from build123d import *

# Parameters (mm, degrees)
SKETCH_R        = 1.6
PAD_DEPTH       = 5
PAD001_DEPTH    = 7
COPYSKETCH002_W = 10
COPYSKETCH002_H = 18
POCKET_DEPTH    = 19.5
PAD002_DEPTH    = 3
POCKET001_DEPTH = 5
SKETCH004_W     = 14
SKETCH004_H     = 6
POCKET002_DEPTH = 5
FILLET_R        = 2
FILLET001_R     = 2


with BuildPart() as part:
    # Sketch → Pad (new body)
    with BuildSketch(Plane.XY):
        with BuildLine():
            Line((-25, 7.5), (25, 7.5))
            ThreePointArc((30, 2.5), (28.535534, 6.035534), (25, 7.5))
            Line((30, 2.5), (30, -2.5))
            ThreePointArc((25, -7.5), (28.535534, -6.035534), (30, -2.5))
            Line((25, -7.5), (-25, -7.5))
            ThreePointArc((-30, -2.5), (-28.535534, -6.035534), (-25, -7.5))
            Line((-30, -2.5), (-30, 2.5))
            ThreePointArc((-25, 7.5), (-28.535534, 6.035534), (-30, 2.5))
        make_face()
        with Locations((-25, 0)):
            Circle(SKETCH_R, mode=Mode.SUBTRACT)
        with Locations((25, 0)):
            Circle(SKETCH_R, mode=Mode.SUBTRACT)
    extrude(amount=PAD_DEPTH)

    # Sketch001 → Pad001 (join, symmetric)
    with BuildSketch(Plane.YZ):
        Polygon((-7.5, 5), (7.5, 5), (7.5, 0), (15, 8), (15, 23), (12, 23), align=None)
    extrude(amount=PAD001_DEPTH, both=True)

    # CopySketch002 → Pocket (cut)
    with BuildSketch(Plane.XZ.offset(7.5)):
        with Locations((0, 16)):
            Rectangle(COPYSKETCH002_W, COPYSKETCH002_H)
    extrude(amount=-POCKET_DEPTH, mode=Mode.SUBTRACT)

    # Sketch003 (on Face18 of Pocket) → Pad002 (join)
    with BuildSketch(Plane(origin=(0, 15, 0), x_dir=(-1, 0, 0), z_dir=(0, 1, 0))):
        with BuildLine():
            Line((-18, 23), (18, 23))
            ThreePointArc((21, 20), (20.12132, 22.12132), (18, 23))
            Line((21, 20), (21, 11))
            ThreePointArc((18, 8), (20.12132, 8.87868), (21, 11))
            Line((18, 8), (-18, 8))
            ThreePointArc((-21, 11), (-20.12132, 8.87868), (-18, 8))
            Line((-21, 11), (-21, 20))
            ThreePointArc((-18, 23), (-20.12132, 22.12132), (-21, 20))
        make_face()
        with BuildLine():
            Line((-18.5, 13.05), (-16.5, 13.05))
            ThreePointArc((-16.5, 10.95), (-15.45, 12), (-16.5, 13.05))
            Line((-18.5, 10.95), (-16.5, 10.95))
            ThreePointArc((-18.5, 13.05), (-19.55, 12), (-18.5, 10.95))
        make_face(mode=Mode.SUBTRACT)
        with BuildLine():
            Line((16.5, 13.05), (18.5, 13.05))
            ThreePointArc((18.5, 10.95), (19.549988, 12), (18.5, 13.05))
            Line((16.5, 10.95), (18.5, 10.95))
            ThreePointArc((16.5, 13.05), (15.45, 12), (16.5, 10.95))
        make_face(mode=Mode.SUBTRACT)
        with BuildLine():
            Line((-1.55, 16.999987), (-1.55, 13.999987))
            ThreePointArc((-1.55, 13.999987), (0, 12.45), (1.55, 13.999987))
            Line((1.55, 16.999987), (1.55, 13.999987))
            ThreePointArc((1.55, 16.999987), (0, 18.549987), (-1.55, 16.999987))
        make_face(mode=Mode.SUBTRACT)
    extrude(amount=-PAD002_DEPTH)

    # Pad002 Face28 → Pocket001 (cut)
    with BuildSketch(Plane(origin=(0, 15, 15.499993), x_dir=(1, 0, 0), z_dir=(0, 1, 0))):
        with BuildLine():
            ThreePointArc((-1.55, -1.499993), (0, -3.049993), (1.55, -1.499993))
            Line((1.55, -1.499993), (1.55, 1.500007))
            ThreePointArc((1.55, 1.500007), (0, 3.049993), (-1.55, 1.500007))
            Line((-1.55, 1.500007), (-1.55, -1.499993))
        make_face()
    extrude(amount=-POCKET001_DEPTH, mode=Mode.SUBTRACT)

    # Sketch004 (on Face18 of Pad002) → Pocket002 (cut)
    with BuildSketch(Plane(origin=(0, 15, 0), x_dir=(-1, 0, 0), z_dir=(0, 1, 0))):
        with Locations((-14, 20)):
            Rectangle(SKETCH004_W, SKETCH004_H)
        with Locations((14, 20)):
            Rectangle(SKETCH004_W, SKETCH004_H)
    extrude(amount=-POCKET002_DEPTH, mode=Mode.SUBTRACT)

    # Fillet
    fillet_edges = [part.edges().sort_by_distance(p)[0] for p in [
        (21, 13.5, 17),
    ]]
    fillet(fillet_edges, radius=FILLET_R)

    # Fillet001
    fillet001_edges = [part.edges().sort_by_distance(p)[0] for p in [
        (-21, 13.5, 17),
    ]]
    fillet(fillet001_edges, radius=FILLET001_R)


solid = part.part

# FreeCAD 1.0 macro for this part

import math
import FreeCAD as App
import Part
import Sketcher
Q = App.Units.Quantity


def edges_at(feature, points):
    """Names of the edges that pass closest to the given points."""
    edges = feature.Shape.Edges
    near = lambda p: min(range(len(edges)), key=lambda i: edges[i].distToShape(Part.Vertex(*p))[0])
    return sorted({f"Edge{near(p) + 1}" for p in points})


def add_polygon(sketch, points):
    """Adds a closed chain of lines whose ends are joined by coincident constraints."""
    first, n = sketch.GeometryCount, len(points)
    for a, b in zip(points, points[1:] + points[:1]):
        sketch.addGeometry(Part.LineSegment(App.Vector(*a, 0), App.Vector(*b, 0)), False)
    for i in range(n):
        sketch.addConstraint(Sketcher.Constraint("Coincident", first + i, 2, first + (i + 1) % n, 1))

doc = App.newDocument("Part")
body = doc.addObject("PartDesign::Body", "Body")

sketch1 = body.newObject("Sketcher::SketchObject", "Sketch")
sketch1.AttachmentSupport = (doc.getObject("XY_Plane"), [""])
sketch1.MapMode = "FlatFace"
sketch1.addGeometry(Part.LineSegment(App.Vector(25, 7.5, 0), App.Vector(-25, 7.5, 0)), False)
sketch1.addGeometry(Part.ArcOfCircle(Part.Circle(App.Vector(-25, 2.5, 0), App.Vector(0, 0, 1), 5), math.radians(89.999996), math.radians(180.000004)), False)
sketch1.addGeometry(Part.LineSegment(App.Vector(-30, 2.5, 0), App.Vector(-30, -2.5, 0)), False)
sketch1.addGeometry(Part.ArcOfCircle(Part.Circle(App.Vector(-25, -2.5, 0), App.Vector(0, 0, 1), 5), math.radians(179.999996), math.radians(270.000004)), False)
sketch1.addGeometry(Part.LineSegment(App.Vector(-25, -7.5, 0), App.Vector(25, -7.5, 0)), False)
sketch1.addGeometry(Part.ArcOfCircle(Part.Circle(App.Vector(25, -2.5, 0), App.Vector(0, 0, 1), 5), math.radians(-90.000004), math.radians(0.000004)), False)
sketch1.addGeometry(Part.LineSegment(App.Vector(30, -2.5, 0), App.Vector(30, 2.5, 0)), False)
sketch1.addGeometry(Part.ArcOfCircle(Part.Circle(App.Vector(25, 2.5, 0), App.Vector(0, 0, 1), 5), math.radians(-0.000004), math.radians(90.000004)), False)
sketch1.addGeometry(Part.Circle(App.Vector(25, 0, 0), App.Vector(0, 0, 1), 1.6), False)
sketch1.addGeometry(Part.Circle(App.Vector(-25, 0, 0), App.Vector(0, 0, 1), 1.6), False)
sketch1.addConstraint(Sketcher.Constraint("Tangent", 0, 2, 1, 1))
sketch1.addConstraint(Sketcher.Constraint("Tangent", 1, 2, 2, 1))
sketch1.addConstraint(Sketcher.Constraint("Tangent", 2, 2, 3, 1))
sketch1.addConstraint(Sketcher.Constraint("Tangent", 3, 2, 4, 1))
sketch1.addConstraint(Sketcher.Constraint("Tangent", 4, 2, 5, 1))
sketch1.addConstraint(Sketcher.Constraint("Tangent", 5, 2, 6, 1))
sketch1.addConstraint(Sketcher.Constraint("Tangent", 6, 2, 7, 1))
sketch1.addConstraint(Sketcher.Constraint("Tangent", 7, 2, 0, 1))
sketch1.addConstraint(Sketcher.Constraint("Horizontal", 0))
sketch1.addConstraint(Sketcher.Constraint("Vertical", 2))
sketch1.addConstraint(Sketcher.Constraint("Horizontal", 4))
sketch1.addConstraint(Sketcher.Constraint("Vertical", 6))
sketch1.addConstraint(Sketcher.Constraint("Equal", 1, 3))
sketch1.addConstraint(Sketcher.Constraint("Equal", 3, 5))
sketch1.addConstraint(Sketcher.Constraint("Equal", 5, 7))
sketch1.addConstraint(Sketcher.Constraint("Equal", 8, 9))
sketch1.addConstraint(Sketcher.Constraint("Symmetric", 1, 3, 5, 3, -1, 1))
sketch1.addConstraint(Sketcher.Constraint("Symmetric", 8, 3, 9, 3, -1, 1))
sketch1.addConstraint(Sketcher.Constraint("PointOnObject", 8, 3, -1))
sketch1.addConstraint(Sketcher.Constraint("Vertical", 7, 3, 8, 3))
sketch1.addConstraint(Sketcher.Constraint("Radius", 1, Q("5 mm")))
sketch1.addConstraint(Sketcher.Constraint("Diameter", 8, Q("3.2 mm")))
sketch1.addConstraint(Sketcher.Constraint("DistanceX", 0, 2, 0, 1, Q("50 mm")))
sketch1.addConstraint(Sketcher.Constraint("DistanceY", 2, 2, 2, 1, Q("5 mm")))
pad1 = body.newObject("PartDesign::Pad", "Pad")
pad1.Profile = sketch1
pad1.Length = 5

sketch2 = body.newObject("Sketcher::SketchObject", "Sketch001")
sketch2.AttachmentSupport = (doc.getObject("YZ_Plane"), [""])
sketch2.MapMode = "FlatFace"
add_polygon(sketch2, [(-7.5, 5), (7.5, 5), (7.5, 0), (15, 8), (15, 23), (12, 23)])
sketch2.addConstraint(Sketcher.Constraint("Horizontal", 0))
sketch2.addConstraint(Sketcher.Constraint("Vertical", 1))
sketch2.addConstraint(Sketcher.Constraint("Vertical", 3))
sketch2.addConstraint(Sketcher.Constraint("Horizontal", 4))
sketch2.addConstraint(Sketcher.Constraint("PointOnObject", 1, 2, -1))
sketch2.addConstraint(Sketcher.Constraint("Equal", 0, 3))
sketch2.addConstraint(Sketcher.Constraint("DistanceX", 0, 1, 0, 2, Q("15 mm")))
sketch2.addConstraint(Sketcher.Constraint("DistanceX", 4, 2, 4, 1, Q("3 mm")))
sketch2.addConstraint(Sketcher.Constraint("DistanceY", 1, 2, 1, 1, Q("5 mm")))
sketch2.addConstraint(Sketcher.Constraint("DistanceX", -1, 1, 2, 2, Q("15 mm")))
sketch2.addConstraint(Sketcher.Constraint("DistanceY", -1, 1, 2, 2, Q("8 mm")))
sketch2.addConstraint(Sketcher.Constraint("DistanceX", -1, 1, 0, 2, Q("7.5 mm")))
pad2 = body.newObject("PartDesign::Pad", "Pad001")
pad2.Profile = sketch2
pad2.Length = 14
pad2.Midplane = True

sketch3 = body.newObject("Sketcher::SketchObject", "Sketch002")
sketch3.AttachmentSupport = (doc.getObject("XZ_Plane"), [""])
sketch3.MapMode = "FlatFace"
sketch3.AttachmentOffset = App.Placement(App.Vector(0, 0, 7.5), App.Rotation())
add_polygon(sketch3, [(-5, 25), (-5, 7), (5, 7), (5, 25)])
sketch3.addConstraint(Sketcher.Constraint("Vertical", 0))
sketch3.addConstraint(Sketcher.Constraint("Horizontal", 1))
sketch3.addConstraint(Sketcher.Constraint("Vertical", 2))
sketch3.addConstraint(Sketcher.Constraint("Horizontal", 3))
sketch3.addConstraint(Sketcher.Constraint("DistanceX", 1, 1, 1, 2, Q("10 mm")))
sketch3.addConstraint(Sketcher.Constraint("DistanceY", 0, 2, 0, 1, Q("18 mm")))
sketch3.addConstraint(Sketcher.Constraint("DistanceX", 0, 2, -1, 1, Q("5 mm")))
sketch3.addConstraint(Sketcher.Constraint("DistanceY", -1, 1, 0, 2, Q("7 mm")))
pocket1 = body.newObject("PartDesign::Pocket", "Pocket")
pocket1.Profile = sketch3
pocket1.Length = 19.5

sketch4 = body.newObject("Sketcher::SketchObject", "Sketch003")
sketch4.AttachmentSupport = (doc.getObject("XZ_Plane"), [""])
sketch4.MapMode = "FlatFace"
sketch4.AttachmentOffset = App.Placement(App.Vector(0, 0, -15), App.Rotation())
sketch4.addGeometry(Part.LineSegment(App.Vector(-18, 23, 0), App.Vector(18, 23, 0)), False)
sketch4.addGeometry(Part.ArcOfCircle(Part.Circle(App.Vector(17.999999, 19.999999, 0), App.Vector(0, 0, 1), 3.000001), math.radians(0.000022), math.radians(89.999978)), False)
sketch4.addGeometry(Part.LineSegment(App.Vector(21, 20, 0), App.Vector(21, 11, 0)), False)
sketch4.addGeometry(Part.ArcOfCircle(Part.Circle(App.Vector(17.999999, 11.000001, 0), App.Vector(0, 0, 1), 3.000001), math.radians(-89.999978), math.radians(-0.000022)), False)
sketch4.addGeometry(Part.LineSegment(App.Vector(18, 8, 0), App.Vector(-18, 8, 0)), False)
sketch4.addGeometry(Part.ArcOfCircle(Part.Circle(App.Vector(-17.999999, 11.000001, 0), App.Vector(0, 0, 1), 3.000001), math.radians(-179.999978), math.radians(-90.000022)), False)
sketch4.addGeometry(Part.LineSegment(App.Vector(-21, 11, 0), App.Vector(-21, 20, 0)), False)
sketch4.addGeometry(Part.ArcOfCircle(Part.Circle(App.Vector(-17.999999, 19.999999, 0), App.Vector(0, 0, 1), 3.000001), math.radians(90.000022), math.radians(179.999978)), False)
sketch4.addGeometry(Part.LineSegment(App.Vector(-16.5, 13.05, 0), App.Vector(-18.5, 13.05, 0)), False)
sketch4.addGeometry(Part.ArcOfCircle(Part.Circle(App.Vector(-18.499988, 12, 0), App.Vector(0, 0, 1), 1.05), math.radians(90.000655), math.radians(269.999345)), False)
sketch4.addGeometry(Part.LineSegment(App.Vector(-18.5, 10.95, 0), App.Vector(-16.5, 10.95, 0)), False)
sketch4.addGeometry(Part.ArcOfCircle(Part.Circle(App.Vector(-16.5, 12, 0), App.Vector(0, 0, 1), 1.05), math.radians(-90), math.radians(90)), False)
sketch4.addGeometry(Part.LineSegment(App.Vector(18.5, 13.05, 0), App.Vector(16.5, 13.05, 0)), False)
sketch4.addGeometry(Part.ArcOfCircle(Part.Circle(App.Vector(16.5, 12, 0), App.Vector(0, 0, 1), 1.05), math.radians(90), math.radians(270)), False)
sketch4.addGeometry(Part.LineSegment(App.Vector(16.5, 10.95, 0), App.Vector(18.5, 10.95, 0)), False)
sketch4.addGeometry(Part.ArcOfCircle(Part.Circle(App.Vector(18.5, 12, 0), App.Vector(0, 0, 1), 1.05), math.radians(-90), math.radians(90)), False)
sketch4.addGeometry(Part.ArcOfCircle(Part.Circle(App.Vector(0, 16.999987, 0), App.Vector(0, 0, 1), 1.55), math.radians(0), math.radians(180)), False)
sketch4.addGeometry(Part.LineSegment(App.Vector(-1.55, 16.999987, 0), App.Vector(-1.55, 13.999987, 0)), False)
sketch4.addGeometry(Part.ArcOfCircle(Part.Circle(App.Vector(0, 14, 0), App.Vector(0, 0, 1), 1.55), math.radians(-179.999519), math.radians(-0.000481)), False)
sketch4.addGeometry(Part.LineSegment(App.Vector(1.55, 13.999987, 0), App.Vector(1.55, 16.999987, 0)), False)
sketch4.addConstraint(Sketcher.Constraint("Tangent", 0, 2, 1, 2))
sketch4.addConstraint(Sketcher.Constraint("Tangent", 1, 1, 2, 1))
sketch4.addConstraint(Sketcher.Constraint("Tangent", 2, 2, 3, 2))
sketch4.addConstraint(Sketcher.Constraint("Tangent", 3, 1, 4, 1))
sketch4.addConstraint(Sketcher.Constraint("Tangent", 4, 2, 5, 2))
sketch4.addConstraint(Sketcher.Constraint("Tangent", 5, 1, 6, 1))
sketch4.addConstraint(Sketcher.Constraint("Tangent", 6, 2, 7, 2))
sketch4.addConstraint(Sketcher.Constraint("Tangent", 7, 1, 0, 1))
sketch4.addConstraint(Sketcher.Constraint("Coincident", 8, 2, 9, 1))
sketch4.addConstraint(Sketcher.Constraint("Coincident", 9, 2, 10, 1))
sketch4.addConstraint(Sketcher.Constraint("Tangent", 10, 2, 11, 1))
sketch4.addConstraint(Sketcher.Constraint("Tangent", 11, 2, 8, 1))
sketch4.addConstraint(Sketcher.Constraint("Tangent", 12, 2, 13, 1))
sketch4.addConstraint(Sketcher.Constraint("Tangent", 13, 2, 14, 1))
sketch4.addConstraint(Sketcher.Constraint("Tangent", 14, 2, 15, 1))
sketch4.addConstraint(Sketcher.Constraint("Tangent", 15, 2, 12, 1))
sketch4.addConstraint(Sketcher.Constraint("Tangent", 16, 2, 17, 1))
sketch4.addConstraint(Sketcher.Constraint("Coincident", 17, 2, 18, 1))
sketch4.addConstraint(Sketcher.Constraint("Coincident", 18, 2, 19, 1))
sketch4.addConstraint(Sketcher.Constraint("Tangent", 19, 2, 16, 1))
sketch4.addConstraint(Sketcher.Constraint("Horizontal", 0))
sketch4.addConstraint(Sketcher.Constraint("Vertical", 2))
sketch4.addConstraint(Sketcher.Constraint("Horizontal", 4))
sketch4.addConstraint(Sketcher.Constraint("Vertical", 6))
sketch4.addConstraint(Sketcher.Constraint("Horizontal", 8))
sketch4.addConstraint(Sketcher.Constraint("Horizontal", 10))
sketch4.addConstraint(Sketcher.Constraint("Horizontal", 12))
sketch4.addConstraint(Sketcher.Constraint("Horizontal", 14))
sketch4.addConstraint(Sketcher.Constraint("Vertical", 17))
sketch4.addConstraint(Sketcher.Constraint("Vertical", 19))
sketch4.addConstraint(Sketcher.Constraint("Equal", 1, 3))
sketch4.addConstraint(Sketcher.Constraint("Equal", 3, 5))
sketch4.addConstraint(Sketcher.Constraint("Equal", 5, 7))
sketch4.addConstraint(Sketcher.Constraint("Equal", 11, 13))
sketch4.addConstraint(Sketcher.Constraint("Symmetric", 11, 3, 13, 3, -2))
sketch4.addConstraint(Sketcher.Constraint("Symmetric", 17, 2, 18, 2, -2))
sketch4.addConstraint(Sketcher.Constraint("Vertical", 8, 2, 9, 2))
sketch4.addConstraint(Sketcher.Constraint("Equal", 10, 12))
sketch4.addConstraint(Sketcher.Constraint("Radius", 1, Q("3.000001 mm")))
sketch4.addConstraint(Sketcher.Constraint("DistanceX", 0, 1, 0, 2, Q("36 mm")))
sketch4.addConstraint(Sketcher.Constraint("DistanceX", 8, 2, 8, 1, Q("2 mm")))
sketch4.addConstraint(Sketcher.Constraint("DistanceY", 2, 2, 2, 1, Q("9 mm")))
sketch4.addConstraint(Sketcher.Constraint("DistanceY", 17, 2, 17, 1, Q("3 mm")))
sketch4.addConstraint(Sketcher.Constraint("Radius", 9, Q("1.05 mm")))
sketch4.addConstraint(Sketcher.Constraint("Radius", 16, Q("1.55 mm")))
sketch4.addConstraint(Sketcher.Constraint("DistanceX", -1, 1, 1, 3, Q("17.999999 mm")))
sketch4.addConstraint(Sketcher.Constraint("DistanceY", -1, 1, 1, 3, Q("19.999999 mm")))
sketch4.addConstraint(Sketcher.Constraint("DistanceY", -1, 1, 9, 3, Q("12 mm")))
sketch4.addConstraint(Sketcher.Constraint("DistanceY", -1, 1, 18, 3, Q("14 mm")))
sketch4.addConstraint(Sketcher.Constraint("DistanceX", 11, 3, 13, 3, Q("33 mm")))
sketch4.addConstraint(Sketcher.Constraint("DistanceX", 9, 3, 5, 3, Q("0.499989 mm")))
sketch4.addConstraint(Sketcher.Constraint("DistanceY", 16, 3, 1, 3, Q("3.000012 mm")))
pad3 = body.newObject("PartDesign::Pad", "Pad002")
pad3.Profile = sketch4
pad3.Length = 3

sketch5 = body.newObject("Sketcher::SketchObject", "Sketch004")
sketch5.AttachmentSupport = (doc.getObject("XZ_Plane"), [""])
sketch5.MapMode = "FlatFace"
sketch5.AttachmentOffset = App.Placement(App.Vector(0, 0, -15), App.Rotation())
sketch5.addGeometry(Part.ArcOfCircle(Part.Circle(App.Vector(0, 16.999986, 0), App.Vector(0, 0, 1), 1.55), math.radians(0), math.radians(180)), False)
sketch5.addGeometry(Part.LineSegment(App.Vector(1.55, 16.999986, 0), App.Vector(1.55, 13.999986, 0)), False)
sketch5.addGeometry(Part.ArcOfCircle(Part.Circle(App.Vector(0, 14, 0), App.Vector(0, 0, 1), 1.55), math.radians(-179.999482), math.radians(-0.000518)), False)
sketch5.addGeometry(Part.LineSegment(App.Vector(-1.55, 13.999986, 0), App.Vector(-1.55, 16.999986, 0)), False)
sketch5.addConstraint(Sketcher.Constraint("Tangent", 0, 1, 1, 1))
sketch5.addConstraint(Sketcher.Constraint("Coincident", 1, 2, 2, 2))
sketch5.addConstraint(Sketcher.Constraint("Coincident", 2, 1, 3, 1))
sketch5.addConstraint(Sketcher.Constraint("Tangent", 3, 2, 0, 2))
sketch5.addConstraint(Sketcher.Constraint("Vertical", 1))
sketch5.addConstraint(Sketcher.Constraint("Vertical", 3))
sketch5.addConstraint(Sketcher.Constraint("Symmetric", 1, 2, 2, 1, -2))
sketch5.addConstraint(Sketcher.Constraint("DistanceY", 1, 2, 1, 1, Q("3 mm")))
sketch5.addConstraint(Sketcher.Constraint("Radius", 0, Q("1.55 mm")))
sketch5.addConstraint(Sketcher.Constraint("DistanceY", -1, 1, 2, 3, Q("14 mm")))
sketch5.addConstraint(Sketcher.Constraint("DistanceY", -1, 1, 0, 3, Q("16.999986 mm")))
pocket2 = body.newObject("PartDesign::Pocket", "Pocket001")
pocket2.Profile = sketch5
pocket2.Length = 5
pocket2.Reversed = True

sketch6 = body.newObject("Sketcher::SketchObject", "Sketch005")
sketch6.AttachmentSupport = (doc.getObject("XZ_Plane"), [""])
sketch6.MapMode = "FlatFace"
sketch6.AttachmentOffset = App.Placement(App.Vector(0, 0, -15), App.Rotation())
add_polygon(sketch6, [(21, 23), (21, 17), (7, 17), (7, 23)])
add_polygon(sketch6, [(-7, 23), (-7, 17), (-21, 17), (-21, 23)])
sketch6.addConstraint(Sketcher.Constraint("Vertical", 0))
sketch6.addConstraint(Sketcher.Constraint("Horizontal", 1))
sketch6.addConstraint(Sketcher.Constraint("Vertical", 2))
sketch6.addConstraint(Sketcher.Constraint("Horizontal", 3))
sketch6.addConstraint(Sketcher.Constraint("Vertical", 4))
sketch6.addConstraint(Sketcher.Constraint("Horizontal", 5))
sketch6.addConstraint(Sketcher.Constraint("Vertical", 6))
sketch6.addConstraint(Sketcher.Constraint("Horizontal", 7))
sketch6.addConstraint(Sketcher.Constraint("Symmetric", 1, 2, 4, 2, -2))
sketch6.addConstraint(Sketcher.Constraint("Symmetric", 3, 2, 6, 2, -2))
sketch6.addConstraint(Sketcher.Constraint("DistanceX", 1, 2, 1, 1, Q("14 mm")))
sketch6.addConstraint(Sketcher.Constraint("DistanceY", 0, 2, 0, 1, Q("6 mm")))
sketch6.addConstraint(Sketcher.Constraint("DistanceX", -1, 1, 0, 2, Q("21 mm")))
sketch6.addConstraint(Sketcher.Constraint("DistanceY", -1, 1, 0, 2, Q("17 mm")))
pocket3 = body.newObject("PartDesign::Pocket", "Pocket002")
pocket3.Profile = sketch6
pocket3.Length = 5
pocket3.Reversed = True
doc.recompute()

fillet = body.newObject("PartDesign::Fillet", "Fillet")
fillet.Base = (pocket3, edges_at(pocket3, [(21, 13.5, 17)]))
fillet.Radius = 2
doc.recompute()

fillet2 = body.newObject("PartDesign::Fillet", "Fillet001")
fillet2.Base = (fillet, edges_at(fillet, [(-21, 13.5, 17)]))
fillet2.Radius = 2

doc.recompute()
